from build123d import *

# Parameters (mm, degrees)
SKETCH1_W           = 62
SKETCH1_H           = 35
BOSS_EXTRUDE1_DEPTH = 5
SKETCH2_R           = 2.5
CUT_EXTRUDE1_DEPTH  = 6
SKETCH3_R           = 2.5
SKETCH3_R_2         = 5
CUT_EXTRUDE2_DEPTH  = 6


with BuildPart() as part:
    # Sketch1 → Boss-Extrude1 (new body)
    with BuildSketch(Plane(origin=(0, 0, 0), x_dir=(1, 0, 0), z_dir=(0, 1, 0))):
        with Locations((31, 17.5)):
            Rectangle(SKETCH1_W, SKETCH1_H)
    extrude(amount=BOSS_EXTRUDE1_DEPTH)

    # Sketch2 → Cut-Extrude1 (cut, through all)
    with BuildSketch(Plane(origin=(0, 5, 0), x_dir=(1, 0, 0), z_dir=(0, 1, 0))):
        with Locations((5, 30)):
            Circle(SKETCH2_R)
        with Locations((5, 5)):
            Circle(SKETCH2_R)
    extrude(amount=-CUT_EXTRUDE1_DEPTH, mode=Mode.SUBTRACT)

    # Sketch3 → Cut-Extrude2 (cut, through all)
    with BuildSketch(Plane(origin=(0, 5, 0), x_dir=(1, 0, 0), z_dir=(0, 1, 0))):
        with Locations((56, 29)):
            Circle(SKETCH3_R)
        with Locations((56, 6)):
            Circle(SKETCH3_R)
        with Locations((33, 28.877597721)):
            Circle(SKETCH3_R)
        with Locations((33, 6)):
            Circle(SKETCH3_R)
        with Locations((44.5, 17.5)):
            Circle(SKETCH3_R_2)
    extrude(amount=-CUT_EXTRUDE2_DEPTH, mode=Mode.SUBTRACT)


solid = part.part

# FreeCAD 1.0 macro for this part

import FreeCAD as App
import Part
import Sketcher
from FreeCAD import Vector
Q = App.Units.Quantity


def add_polygon(sketch, points):
    """Adds a closed chain of lines whose ends are joined by coincident constraints."""
    first, n = sketch.GeometryCount, len(points)
    for a, b in zip(points, points[1:] + points[:1]):
        sketch.addGeometry(Part.LineSegment(App.Vector(*a, 0), App.Vector(*b, 0)), False)
    for i in range(n):
        sketch.addConstraint(Sketcher.Constraint("Coincident", first + i, 2, first + (i + 1) % n, 1))

doc = App.newDocument("Part")
body = doc.addObject("PartDesign::Body", "Body")

# Sketch on XZ plane
sketch1 = body.newObject("Sketcher::SketchObject", "Sketch")
sketch1.AttachmentSupport = (doc.getObject("XZ_Plane"), [""])
sketch1.MapMode = "FlatFace"
add_polygon(sketch1, [(0, -35), (0, 0), (62, 0), (62, -35)])  # lines 0-3
sketch1.addConstraint(Sketcher.Constraint("Vertical", 0))
sketch1.addConstraint(Sketcher.Constraint("Horizontal", 1))
sketch1.addConstraint(Sketcher.Constraint("Vertical", 2))
sketch1.addConstraint(Sketcher.Constraint("Horizontal", 3))
sketch1.addConstraint(Sketcher.Constraint("Coincident", 0, 2, -1, 1))
sketch1.addConstraint(Sketcher.Constraint("DistanceX", 1, 1, 1, 2, Q("62 mm")))
sketch1.addConstraint(Sketcher.Constraint("DistanceY", 0, 1, 0, 2, Q("35 mm")))
pad1 = body.newObject("PartDesign::Pad", "Pad")
pad1.Profile = sketch1
pad1.Length = 5
pad1.Reversed = True

# Sketch on XZ plane
sketch2 = body.newObject("Sketcher::SketchObject", "Sketch001")
sketch2.AttachmentSupport = (doc.getObject("XZ_Plane"), [""])
sketch2.MapMode = "FlatFace"
sketch2.AttachmentOffset = App.Placement(Vector(0, 0, -5), App.Rotation())
sketch2.addGeometry(Part.Circle(Vector(5, -30, 0), Vector(0, 0, 1), 2.5), False)
sketch2.addGeometry(Part.Circle(Vector(5, -5, 0), Vector(0, 0, 1), 2.5), False)
sketch2.addConstraint(Sketcher.Constraint("Equal", 0, 1))
sketch2.addConstraint(Sketcher.Constraint("Vertical", 0, 3, 1, 3))
sketch2.addConstraint(Sketcher.Constraint("Diameter", 0, Q("5 mm")))
sketch2.addConstraint(Sketcher.Constraint("DistanceX", -1, 1, 0, 3, Q("5 mm")))
sketch2.addConstraint(Sketcher.Constraint("DistanceY", 0, 3, -1, 1, Q("30 mm")))
sketch2.addConstraint(Sketcher.Constraint("DistanceY", 1, 3, -1, 1, Q("5 mm")))
pocket1 = body.newObject("PartDesign::Pocket", "Pocket")
pocket1.Profile = sketch2
pocket1.Type = "ThroughAll"
pocket1.Reversed = True

# Sketch on XZ plane
sketch3 = body.newObject("Sketcher::SketchObject", "Sketch002")
sketch3.AttachmentSupport = (doc.getObject("XZ_Plane"), [""])
sketch3.MapMode = "FlatFace"
sketch3.AttachmentOffset = App.Placement(Vector(0, 0, -5), App.Rotation())
sketch3.addGeometry(Part.Circle(Vector(56, -29, 0), Vector(0, 0, 1), 2.5), False)
sketch3.addGeometry(Part.Circle(Vector(56, -6, 0), Vector(0, 0, 1), 2.5), False)
sketch3.addGeometry(Part.Circle(Vector(33, -28.9, 0), Vector(0, 0, 1), 2.5), False)
sketch3.addGeometry(Part.Circle(Vector(33, -6, 0), Vector(0, 0, 1), 2.5), False)
sketch3.addGeometry(Part.Circle(Vector(44.5, -17.5, 0), Vector(0, 0, 1), 5), False)
sketch3.addConstraint(Sketcher.Constraint("Equal", 0, 1))
sketch3.addConstraint(Sketcher.Constraint("Equal", 1, 2))
sketch3.addConstraint(Sketcher.Constraint("Equal", 2, 3))
sketch3.addConstraint(Sketcher.Constraint("Horizontal", 1, 3, 3, 3))
sketch3.addConstraint(Sketcher.Constraint("Vertical", 0, 3, 1, 3))
sketch3.addConstraint(Sketcher.Constraint("Vertical", 2, 3, 3, 3))
sketch3.addConstraint(Sketcher.Constraint("Diameter", 0, Q("5 mm")))
sketch3.addConstraint(Sketcher.Constraint("Diameter", 4, Q("10 mm")))
sketch3.addConstraint(Sketcher.Constraint("DistanceX", -1, 1, 0, 3, Q("56 mm")))
sketch3.addConstraint(Sketcher.Constraint("DistanceY", 0, 3, -1, 1, Q("29 mm")))
sketch3.addConstraint(Sketcher.Constraint("DistanceY", 1, 3, -1, 1, Q("6 mm")))
sketch3.addConstraint(Sketcher.Constraint("DistanceX", -1, 1, 2, 3, Q("33 mm")))
sketch3.addConstraint(Sketcher.Constraint("DistanceX", -1, 1, 4, 3, Q("44.5 mm")))
sketch3.addConstraint(Sketcher.Constraint("DistanceY", 4, 3, -1, 1, Q("17.5 mm")))
sketch3.addConstraint(Sketcher.Constraint("DistanceY", 2, 3, -1, 1, Q("28.877598 mm")))
pocket2 = body.newObject("PartDesign::Pocket", "Pocket001")
pocket2.Profile = sketch3
pocket2.Type = "ThroughAll"
pocket2.Reversed = True

doc.recompute()
